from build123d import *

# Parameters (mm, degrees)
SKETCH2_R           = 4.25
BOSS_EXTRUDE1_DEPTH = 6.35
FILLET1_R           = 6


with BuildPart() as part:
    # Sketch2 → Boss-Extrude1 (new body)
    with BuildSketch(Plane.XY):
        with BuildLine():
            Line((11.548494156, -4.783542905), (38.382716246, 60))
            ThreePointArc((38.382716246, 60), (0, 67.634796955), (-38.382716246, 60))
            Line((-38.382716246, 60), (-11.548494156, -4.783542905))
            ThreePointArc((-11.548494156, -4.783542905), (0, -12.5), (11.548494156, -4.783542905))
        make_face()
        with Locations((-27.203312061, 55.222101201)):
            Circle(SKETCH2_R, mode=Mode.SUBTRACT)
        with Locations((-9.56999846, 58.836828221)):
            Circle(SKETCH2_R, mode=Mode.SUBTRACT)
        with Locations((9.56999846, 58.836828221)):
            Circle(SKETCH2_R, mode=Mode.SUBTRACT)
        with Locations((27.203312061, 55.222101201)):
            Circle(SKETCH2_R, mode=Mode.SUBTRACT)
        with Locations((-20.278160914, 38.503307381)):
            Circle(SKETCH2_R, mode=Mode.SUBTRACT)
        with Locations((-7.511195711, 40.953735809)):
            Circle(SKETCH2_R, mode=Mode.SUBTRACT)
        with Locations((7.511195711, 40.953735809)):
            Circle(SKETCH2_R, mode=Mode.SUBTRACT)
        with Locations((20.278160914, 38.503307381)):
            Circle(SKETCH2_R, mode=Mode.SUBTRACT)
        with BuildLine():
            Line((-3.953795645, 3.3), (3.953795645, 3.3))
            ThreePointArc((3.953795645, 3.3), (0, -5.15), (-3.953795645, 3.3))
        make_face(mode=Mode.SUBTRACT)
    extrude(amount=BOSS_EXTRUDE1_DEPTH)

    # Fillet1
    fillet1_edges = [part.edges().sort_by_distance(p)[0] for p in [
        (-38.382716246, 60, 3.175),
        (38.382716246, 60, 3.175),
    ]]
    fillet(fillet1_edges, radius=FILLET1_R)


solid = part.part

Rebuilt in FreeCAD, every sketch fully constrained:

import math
import FreeCAD as App
import Part
import Sketcher
Q = App.Units.Quantity


def edges_at(feature, points):
    """Names of the edges that pass closest to the given points."""
    edges = feature.Shape.Edges
    near = lambda p: min(range(len(edges)), key=lambda i: edges[i].distToShape(Part.Vertex(*p))[0])
    return sorted({f"Edge{near(p) + 1}" for p in points})

doc = App.newDocument("Part")
body = doc.addObject("PartDesign::Body", "Body")

sketch1 = body.newObject("Sketcher::SketchObject", "Sketch")
sketch1.AttachmentSupport = (doc.getObject("XY_Plane"), [""])
sketch1.MapMode = "FlatFace"
sketch1.addGeometry([
    Part.LineSegment(App.Vector(11.5, -4.8, 0), App.Vector(38.4, 60, 0)),
    Part.ArcOfCircle(Part.Circle(App.Vector(0, -32.7, 0), App.Vector(0, 0, 1), 100.3), math.radians(67), math.radians(113)),
    Part.LineSegment(App.Vector(-38.4, 60, 0), App.Vector(-11.5, -4.8, 0)),
    Part.ArcOfCircle(Part.Circle(App.Vector(0, 0, 0), App.Vector(0, 0, 1), 12.5), math.radians(-157), math.radians(-23)),
    Part.ArcOfCircle(Part.Circle(App.Vector(0, 0, 0), App.Vector(0, 0, 1), 5.2), math.radians(140), math.radians(400)),
    Part.LineSegment(App.Vector(-4, 3.3, 0), App.Vector(4, 3.3, 0)),
    Part.Circle(App.Vector(-20.3, 38.5, 0), App.Vector(0, 0, 1), 4.2),
    Part.Circle(App.Vector(-7.5, 41, 0), App.Vector(0, 0, 1), 4.2),
    Part.Circle(App.Vector(-27.2, 55.2, 0), App.Vector(0, 0, 1), 4.2),
    Part.Circle(App.Vector(-9.6, 58.8, 0), App.Vector(0, 0, 1), 4.2),
    Part.Circle(App.Vector(7.5, 41, 0), App.Vector(0, 0, 1), 4.2),
    Part.Circle(App.Vector(20.3, 38.5, 0), App.Vector(0, 0, 1), 4.2),
    Part.Circle(App.Vector(9.6, 58.8, 0), App.Vector(0, 0, 1), 4.2),
    Part.Circle(App.Vector(27.2, 55.2, 0), App.Vector(0, 0, 1), 4.2),
], False)
sketch1.addConstraint([
    Sketcher.Constraint("Coincident", 0, 2, 1, 1),
    Sketcher.Constraint("Coincident", 1, 2, 2, 1),
    Sketcher.Constraint("Tangent", 2, 2, 3, 1),
    Sketcher.Constraint("Tangent", 3, 2, 0, 1),
    Sketcher.Constraint("Coincident", 4, 1, 5, 1),
    Sketcher.Constraint("Coincident", 5, 2, 4, 2),
    Sketcher.Constraint("Horizontal", 5),
    Sketcher.Constraint("Coincident", 3, 3, -1, 1),
    Sketcher.Constraint("Coincident", 4, 3, -1, 1),
    Sketcher.Constraint("Equal", 6, 7),
    Sketcher.Constraint("Equal", 7, 8),
    Sketcher.Constraint("Equal", 8, 9),
    Sketcher.Constraint("Equal", 9, 10),
    Sketcher.Constraint("Equal", 10, 11),
    Sketcher.Constraint("Equal", 11, 12),
    Sketcher.Constraint("Equal", 12, 13),
    Sketcher.Constraint("Symmetric", 7, 3, 10, 3, -2),
    Sketcher.Constraint("Symmetric", 6, 3, 11, 3, -2),
    Sketcher.Constraint("Symmetric", 9, 3, 12, 3, -2),
    Sketcher.Constraint("Symmetric", 8, 3, 13, 3, -2),
    Sketcher.Constraint("Symmetric", 0, 2, 1, 2, -2),
    Sketcher.Constraint("Diameter", 6, 8.5),
    Sketcher.Constraint("Radius", 3, 12.5),
    Sketcher.Constraint("Radius", 4, 5.15),
    Sketcher.Constraint("DistanceY", -1, 1, 0, 2, 60.0),
    Sketcher.Constraint("Angle", 0, Q("67.5 deg")),
    Sketcher.Constraint("DistanceY", -1, 1, 4, 1, 3.3),
    Sketcher.Constraint("DistanceX", 9, 3, -1, 1, 9.569998),
    Sketcher.Constraint("Radius", 1, 100.298871),
    Sketcher.Constraint("DistanceY", -1, 1, 8, 3, 55.222101),
    Sketcher.Constraint("DistanceX", 2, 2, 7, 3, 4.037298),
    Sketcher.Constraint("DistanceX", 6, 3, -1, 1, 20.278161),
    Sketcher.Constraint("DistanceY", -1, 1, 9, 3, 58.836828),
    Sketcher.Constraint("DistanceY", 1, 3, 6, 3, 71.167382),
    Sketcher.Constraint("DistanceY", 6, 3, 7, 3, 2.450428),
    Sketcher.Constraint("DistanceX", 8, 3, 6, 3, 6.925151),
])
pad1 = body.newObject("PartDesign::Pad", "Pad")
pad1.Profile = sketch1
pad1.Length = 6.35
doc.recompute()

fillet = body.newObject("PartDesign::Fillet", "Fillet")
fillet.Base = (pad1, edges_at(pad1, [(-38.383, 60, 3.175), (38.383, 60, 3.175)]))
fillet.Radius = 6

doc.recompute()
